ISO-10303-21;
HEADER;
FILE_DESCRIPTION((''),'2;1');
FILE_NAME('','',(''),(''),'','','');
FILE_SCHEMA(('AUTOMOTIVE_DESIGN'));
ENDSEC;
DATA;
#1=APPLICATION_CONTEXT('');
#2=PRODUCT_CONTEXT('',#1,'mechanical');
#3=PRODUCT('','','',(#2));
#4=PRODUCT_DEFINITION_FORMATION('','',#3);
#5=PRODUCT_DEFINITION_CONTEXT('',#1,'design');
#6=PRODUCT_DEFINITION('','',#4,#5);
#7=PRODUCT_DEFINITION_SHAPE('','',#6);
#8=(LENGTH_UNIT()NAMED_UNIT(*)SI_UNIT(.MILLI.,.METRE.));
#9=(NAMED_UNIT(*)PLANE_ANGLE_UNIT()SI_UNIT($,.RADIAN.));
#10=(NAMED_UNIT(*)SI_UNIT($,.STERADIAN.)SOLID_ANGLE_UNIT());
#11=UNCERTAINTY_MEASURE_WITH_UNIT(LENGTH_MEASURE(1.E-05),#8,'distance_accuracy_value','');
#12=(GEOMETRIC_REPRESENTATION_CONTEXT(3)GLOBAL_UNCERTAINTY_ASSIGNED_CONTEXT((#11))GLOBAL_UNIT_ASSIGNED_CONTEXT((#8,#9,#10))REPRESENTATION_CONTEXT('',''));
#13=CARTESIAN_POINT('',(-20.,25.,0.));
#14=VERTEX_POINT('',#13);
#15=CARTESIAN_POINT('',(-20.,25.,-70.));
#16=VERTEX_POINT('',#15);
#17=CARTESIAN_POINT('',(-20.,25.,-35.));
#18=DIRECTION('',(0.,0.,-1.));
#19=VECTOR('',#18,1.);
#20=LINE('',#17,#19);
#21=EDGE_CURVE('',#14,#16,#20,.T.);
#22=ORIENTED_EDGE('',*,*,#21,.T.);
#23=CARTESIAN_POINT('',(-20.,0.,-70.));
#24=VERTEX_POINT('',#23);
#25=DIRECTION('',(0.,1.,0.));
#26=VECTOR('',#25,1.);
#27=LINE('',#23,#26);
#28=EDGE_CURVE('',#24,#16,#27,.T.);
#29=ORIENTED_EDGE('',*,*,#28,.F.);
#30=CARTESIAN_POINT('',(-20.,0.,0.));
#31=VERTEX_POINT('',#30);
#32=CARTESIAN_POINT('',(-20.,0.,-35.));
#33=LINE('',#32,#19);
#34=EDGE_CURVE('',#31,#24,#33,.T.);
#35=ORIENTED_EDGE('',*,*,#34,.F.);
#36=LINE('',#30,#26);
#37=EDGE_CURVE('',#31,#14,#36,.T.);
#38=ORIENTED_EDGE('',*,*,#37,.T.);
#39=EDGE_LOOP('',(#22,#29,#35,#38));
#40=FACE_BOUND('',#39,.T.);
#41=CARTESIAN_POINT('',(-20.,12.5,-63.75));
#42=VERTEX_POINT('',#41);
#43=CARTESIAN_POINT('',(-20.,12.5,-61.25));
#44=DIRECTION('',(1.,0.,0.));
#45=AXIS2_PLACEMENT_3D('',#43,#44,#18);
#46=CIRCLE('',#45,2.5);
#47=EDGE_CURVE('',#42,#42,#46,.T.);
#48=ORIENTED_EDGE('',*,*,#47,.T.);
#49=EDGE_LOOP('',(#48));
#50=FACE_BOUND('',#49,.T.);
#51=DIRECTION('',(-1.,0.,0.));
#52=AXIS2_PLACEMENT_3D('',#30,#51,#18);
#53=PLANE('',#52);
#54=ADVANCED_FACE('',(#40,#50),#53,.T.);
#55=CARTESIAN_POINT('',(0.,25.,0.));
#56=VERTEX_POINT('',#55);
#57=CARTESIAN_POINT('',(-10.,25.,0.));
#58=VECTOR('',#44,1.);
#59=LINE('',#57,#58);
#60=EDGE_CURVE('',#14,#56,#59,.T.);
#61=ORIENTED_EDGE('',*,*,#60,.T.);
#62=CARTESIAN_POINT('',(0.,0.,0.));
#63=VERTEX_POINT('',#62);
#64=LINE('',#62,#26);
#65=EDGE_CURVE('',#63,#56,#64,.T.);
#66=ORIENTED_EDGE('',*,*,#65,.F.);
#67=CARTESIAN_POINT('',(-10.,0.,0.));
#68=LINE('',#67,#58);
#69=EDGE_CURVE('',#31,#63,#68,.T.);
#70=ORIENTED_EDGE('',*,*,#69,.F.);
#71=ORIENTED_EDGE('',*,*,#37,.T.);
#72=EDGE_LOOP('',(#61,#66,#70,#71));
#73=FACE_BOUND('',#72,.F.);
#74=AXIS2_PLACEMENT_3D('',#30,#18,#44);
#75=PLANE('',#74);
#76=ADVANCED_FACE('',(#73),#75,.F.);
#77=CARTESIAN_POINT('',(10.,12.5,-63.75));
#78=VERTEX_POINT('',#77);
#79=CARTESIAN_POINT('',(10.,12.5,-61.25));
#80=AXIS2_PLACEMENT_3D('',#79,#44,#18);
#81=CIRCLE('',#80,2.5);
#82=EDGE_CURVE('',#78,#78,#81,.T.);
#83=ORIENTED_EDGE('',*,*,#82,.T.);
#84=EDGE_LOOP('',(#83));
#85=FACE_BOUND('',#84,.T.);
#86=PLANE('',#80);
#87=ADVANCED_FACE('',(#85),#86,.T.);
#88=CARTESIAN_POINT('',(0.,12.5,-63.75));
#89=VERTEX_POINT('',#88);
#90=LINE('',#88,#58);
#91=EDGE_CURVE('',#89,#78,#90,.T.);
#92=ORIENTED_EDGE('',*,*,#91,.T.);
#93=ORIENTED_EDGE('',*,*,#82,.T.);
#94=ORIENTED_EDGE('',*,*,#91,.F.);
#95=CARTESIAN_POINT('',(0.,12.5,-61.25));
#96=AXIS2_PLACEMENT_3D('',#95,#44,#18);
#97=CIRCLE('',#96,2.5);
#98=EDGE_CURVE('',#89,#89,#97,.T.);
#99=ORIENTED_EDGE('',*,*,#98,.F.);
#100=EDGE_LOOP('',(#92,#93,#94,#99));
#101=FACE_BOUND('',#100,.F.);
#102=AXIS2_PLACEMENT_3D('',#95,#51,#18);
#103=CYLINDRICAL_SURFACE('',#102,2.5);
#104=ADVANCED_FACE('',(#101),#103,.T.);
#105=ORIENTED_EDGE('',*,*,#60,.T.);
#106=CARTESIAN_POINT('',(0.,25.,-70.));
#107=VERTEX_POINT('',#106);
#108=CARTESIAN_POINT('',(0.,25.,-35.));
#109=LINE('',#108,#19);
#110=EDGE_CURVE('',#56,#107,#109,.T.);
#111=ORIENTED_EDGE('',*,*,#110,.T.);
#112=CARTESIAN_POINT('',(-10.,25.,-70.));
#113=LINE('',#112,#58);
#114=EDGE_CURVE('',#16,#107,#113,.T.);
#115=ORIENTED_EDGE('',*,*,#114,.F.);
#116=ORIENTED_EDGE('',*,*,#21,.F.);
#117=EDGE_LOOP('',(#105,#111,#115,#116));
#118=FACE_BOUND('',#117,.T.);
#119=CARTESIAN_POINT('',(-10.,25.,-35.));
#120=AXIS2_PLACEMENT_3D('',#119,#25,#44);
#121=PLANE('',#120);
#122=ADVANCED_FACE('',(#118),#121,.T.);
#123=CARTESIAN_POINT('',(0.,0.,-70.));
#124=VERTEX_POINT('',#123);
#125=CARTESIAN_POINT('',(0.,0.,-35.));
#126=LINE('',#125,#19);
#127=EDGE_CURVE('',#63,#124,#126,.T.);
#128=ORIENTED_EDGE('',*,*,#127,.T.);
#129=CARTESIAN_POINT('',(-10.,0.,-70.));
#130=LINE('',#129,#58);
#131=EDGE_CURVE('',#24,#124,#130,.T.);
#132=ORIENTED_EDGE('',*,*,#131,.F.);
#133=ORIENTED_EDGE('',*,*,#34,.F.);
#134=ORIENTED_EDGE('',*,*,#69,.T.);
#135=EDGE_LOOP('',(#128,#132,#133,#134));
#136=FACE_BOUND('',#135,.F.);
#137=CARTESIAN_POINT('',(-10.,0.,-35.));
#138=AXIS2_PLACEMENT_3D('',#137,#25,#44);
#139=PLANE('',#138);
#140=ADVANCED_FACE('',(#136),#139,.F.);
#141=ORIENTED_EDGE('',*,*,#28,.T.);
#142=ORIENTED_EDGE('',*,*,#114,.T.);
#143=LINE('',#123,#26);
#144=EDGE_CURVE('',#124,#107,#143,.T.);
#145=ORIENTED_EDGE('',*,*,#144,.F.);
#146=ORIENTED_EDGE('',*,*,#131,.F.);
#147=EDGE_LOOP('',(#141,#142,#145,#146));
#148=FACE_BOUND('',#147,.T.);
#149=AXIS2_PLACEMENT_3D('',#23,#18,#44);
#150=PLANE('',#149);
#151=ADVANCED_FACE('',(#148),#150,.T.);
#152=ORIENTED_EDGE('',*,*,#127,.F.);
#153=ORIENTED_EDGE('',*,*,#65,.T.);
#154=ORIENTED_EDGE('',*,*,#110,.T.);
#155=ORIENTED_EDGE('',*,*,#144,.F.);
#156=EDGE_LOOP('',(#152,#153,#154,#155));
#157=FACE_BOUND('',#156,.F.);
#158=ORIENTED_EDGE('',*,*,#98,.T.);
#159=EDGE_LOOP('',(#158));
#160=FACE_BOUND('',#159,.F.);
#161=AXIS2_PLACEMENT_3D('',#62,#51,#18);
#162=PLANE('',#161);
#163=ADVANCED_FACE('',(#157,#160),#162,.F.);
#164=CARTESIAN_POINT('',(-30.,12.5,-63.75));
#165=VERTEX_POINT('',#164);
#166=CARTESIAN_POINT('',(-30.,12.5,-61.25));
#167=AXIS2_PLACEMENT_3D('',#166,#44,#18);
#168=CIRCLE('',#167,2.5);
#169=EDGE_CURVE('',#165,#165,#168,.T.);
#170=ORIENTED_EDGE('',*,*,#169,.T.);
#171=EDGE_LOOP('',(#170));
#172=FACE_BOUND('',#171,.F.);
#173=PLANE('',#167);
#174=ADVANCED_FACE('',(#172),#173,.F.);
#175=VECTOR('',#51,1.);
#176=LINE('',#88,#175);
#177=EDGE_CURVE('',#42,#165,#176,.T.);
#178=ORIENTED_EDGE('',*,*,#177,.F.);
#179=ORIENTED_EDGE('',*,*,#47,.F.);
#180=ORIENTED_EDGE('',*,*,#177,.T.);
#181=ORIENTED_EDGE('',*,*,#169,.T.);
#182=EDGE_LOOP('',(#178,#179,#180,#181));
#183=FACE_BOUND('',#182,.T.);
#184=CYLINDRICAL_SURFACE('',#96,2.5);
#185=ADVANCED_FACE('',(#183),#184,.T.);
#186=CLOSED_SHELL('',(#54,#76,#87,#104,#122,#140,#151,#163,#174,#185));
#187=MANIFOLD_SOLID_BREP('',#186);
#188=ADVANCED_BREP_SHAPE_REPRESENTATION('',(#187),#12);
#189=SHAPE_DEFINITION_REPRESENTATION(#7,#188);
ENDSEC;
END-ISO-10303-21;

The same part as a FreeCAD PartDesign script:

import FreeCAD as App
import Part
import Sketcher

V = App.Vector


def add_polygon(sketch, points):
    """Adds a closed chain of lines whose ends are joined by coincident constraints."""
    first, n = sketch.GeometryCount, len(points)
    for a, b in zip(points, points[1:] + points[:1]):
        sketch.addGeometry(Part.LineSegment(App.Vector(*a, 0), App.Vector(*b, 0)), False)
    for i in range(n):
        sketch.addConstraint(Sketcher.Constraint("Coincident", first + i, 2, first + (i + 1) % n, 1))

doc = App.newDocument("Part")
body = doc.addObject("PartDesign::Body", "Body")

# Sketch on XZ plane
sketch1 = body.newObject("Sketcher::SketchObject", "Sketch")
sketch1.AttachmentSupport = (doc.getObject("XZ_Plane"), [""])
sketch1.MapMode = "FlatFace"
add_polygon(sketch1, [(-20, -70), (-20, 0), (0, 0), (0, -70)])  # lines 0-3
sketch1.addConstraint([
    Sketcher.Constraint("Vertical", 0),
    Sketcher.Constraint("Horizontal", 1),
    Sketcher.Constraint("Vertical", 2),
    Sketcher.Constraint("Horizontal", 3),
    Sketcher.Constraint("Coincident", 1, 2, -1, 1),
    Sketcher.Constraint("DistanceX", 1, 1, 1, 2, 20.0),
    Sketcher.Constraint("DistanceY", 0, 1, 0, 2, 70.0),
])
pad1 = body.newObject("PartDesign::Pad", "Pad")
pad1.Profile = sketch1
pad1.Length = 25
pad1.Reversed = True

# Sketch on YZ plane
sketch2 = body.newObject("Sketcher::SketchObject", "Sketch001")
sketch2.AttachmentSupport = (doc.getObject("YZ_Plane"), [""])
sketch2.MapMode = "FlatFace"
sketch2.addGeometry(Part.Circle(V(12.5, -61.2, 0), V(0, 0, 1), 2.5), False)
sketch2.addConstraint([
    Sketcher.Constraint("Diameter", 0, 5.0),
    Sketcher.Constraint("DistanceX", -1, 1, 0, 3, 12.5),
    Sketcher.Constraint("DistanceY", 0, 3, -1, 1, 61.25),
])
pad2 = body.newObject("PartDesign::Pad", "Pad001")
pad2.Profile = sketch2
pad2.Type = "TwoLengths"
pad2.Length = 10
pad2.Length2 = 30

doc.recompute()
